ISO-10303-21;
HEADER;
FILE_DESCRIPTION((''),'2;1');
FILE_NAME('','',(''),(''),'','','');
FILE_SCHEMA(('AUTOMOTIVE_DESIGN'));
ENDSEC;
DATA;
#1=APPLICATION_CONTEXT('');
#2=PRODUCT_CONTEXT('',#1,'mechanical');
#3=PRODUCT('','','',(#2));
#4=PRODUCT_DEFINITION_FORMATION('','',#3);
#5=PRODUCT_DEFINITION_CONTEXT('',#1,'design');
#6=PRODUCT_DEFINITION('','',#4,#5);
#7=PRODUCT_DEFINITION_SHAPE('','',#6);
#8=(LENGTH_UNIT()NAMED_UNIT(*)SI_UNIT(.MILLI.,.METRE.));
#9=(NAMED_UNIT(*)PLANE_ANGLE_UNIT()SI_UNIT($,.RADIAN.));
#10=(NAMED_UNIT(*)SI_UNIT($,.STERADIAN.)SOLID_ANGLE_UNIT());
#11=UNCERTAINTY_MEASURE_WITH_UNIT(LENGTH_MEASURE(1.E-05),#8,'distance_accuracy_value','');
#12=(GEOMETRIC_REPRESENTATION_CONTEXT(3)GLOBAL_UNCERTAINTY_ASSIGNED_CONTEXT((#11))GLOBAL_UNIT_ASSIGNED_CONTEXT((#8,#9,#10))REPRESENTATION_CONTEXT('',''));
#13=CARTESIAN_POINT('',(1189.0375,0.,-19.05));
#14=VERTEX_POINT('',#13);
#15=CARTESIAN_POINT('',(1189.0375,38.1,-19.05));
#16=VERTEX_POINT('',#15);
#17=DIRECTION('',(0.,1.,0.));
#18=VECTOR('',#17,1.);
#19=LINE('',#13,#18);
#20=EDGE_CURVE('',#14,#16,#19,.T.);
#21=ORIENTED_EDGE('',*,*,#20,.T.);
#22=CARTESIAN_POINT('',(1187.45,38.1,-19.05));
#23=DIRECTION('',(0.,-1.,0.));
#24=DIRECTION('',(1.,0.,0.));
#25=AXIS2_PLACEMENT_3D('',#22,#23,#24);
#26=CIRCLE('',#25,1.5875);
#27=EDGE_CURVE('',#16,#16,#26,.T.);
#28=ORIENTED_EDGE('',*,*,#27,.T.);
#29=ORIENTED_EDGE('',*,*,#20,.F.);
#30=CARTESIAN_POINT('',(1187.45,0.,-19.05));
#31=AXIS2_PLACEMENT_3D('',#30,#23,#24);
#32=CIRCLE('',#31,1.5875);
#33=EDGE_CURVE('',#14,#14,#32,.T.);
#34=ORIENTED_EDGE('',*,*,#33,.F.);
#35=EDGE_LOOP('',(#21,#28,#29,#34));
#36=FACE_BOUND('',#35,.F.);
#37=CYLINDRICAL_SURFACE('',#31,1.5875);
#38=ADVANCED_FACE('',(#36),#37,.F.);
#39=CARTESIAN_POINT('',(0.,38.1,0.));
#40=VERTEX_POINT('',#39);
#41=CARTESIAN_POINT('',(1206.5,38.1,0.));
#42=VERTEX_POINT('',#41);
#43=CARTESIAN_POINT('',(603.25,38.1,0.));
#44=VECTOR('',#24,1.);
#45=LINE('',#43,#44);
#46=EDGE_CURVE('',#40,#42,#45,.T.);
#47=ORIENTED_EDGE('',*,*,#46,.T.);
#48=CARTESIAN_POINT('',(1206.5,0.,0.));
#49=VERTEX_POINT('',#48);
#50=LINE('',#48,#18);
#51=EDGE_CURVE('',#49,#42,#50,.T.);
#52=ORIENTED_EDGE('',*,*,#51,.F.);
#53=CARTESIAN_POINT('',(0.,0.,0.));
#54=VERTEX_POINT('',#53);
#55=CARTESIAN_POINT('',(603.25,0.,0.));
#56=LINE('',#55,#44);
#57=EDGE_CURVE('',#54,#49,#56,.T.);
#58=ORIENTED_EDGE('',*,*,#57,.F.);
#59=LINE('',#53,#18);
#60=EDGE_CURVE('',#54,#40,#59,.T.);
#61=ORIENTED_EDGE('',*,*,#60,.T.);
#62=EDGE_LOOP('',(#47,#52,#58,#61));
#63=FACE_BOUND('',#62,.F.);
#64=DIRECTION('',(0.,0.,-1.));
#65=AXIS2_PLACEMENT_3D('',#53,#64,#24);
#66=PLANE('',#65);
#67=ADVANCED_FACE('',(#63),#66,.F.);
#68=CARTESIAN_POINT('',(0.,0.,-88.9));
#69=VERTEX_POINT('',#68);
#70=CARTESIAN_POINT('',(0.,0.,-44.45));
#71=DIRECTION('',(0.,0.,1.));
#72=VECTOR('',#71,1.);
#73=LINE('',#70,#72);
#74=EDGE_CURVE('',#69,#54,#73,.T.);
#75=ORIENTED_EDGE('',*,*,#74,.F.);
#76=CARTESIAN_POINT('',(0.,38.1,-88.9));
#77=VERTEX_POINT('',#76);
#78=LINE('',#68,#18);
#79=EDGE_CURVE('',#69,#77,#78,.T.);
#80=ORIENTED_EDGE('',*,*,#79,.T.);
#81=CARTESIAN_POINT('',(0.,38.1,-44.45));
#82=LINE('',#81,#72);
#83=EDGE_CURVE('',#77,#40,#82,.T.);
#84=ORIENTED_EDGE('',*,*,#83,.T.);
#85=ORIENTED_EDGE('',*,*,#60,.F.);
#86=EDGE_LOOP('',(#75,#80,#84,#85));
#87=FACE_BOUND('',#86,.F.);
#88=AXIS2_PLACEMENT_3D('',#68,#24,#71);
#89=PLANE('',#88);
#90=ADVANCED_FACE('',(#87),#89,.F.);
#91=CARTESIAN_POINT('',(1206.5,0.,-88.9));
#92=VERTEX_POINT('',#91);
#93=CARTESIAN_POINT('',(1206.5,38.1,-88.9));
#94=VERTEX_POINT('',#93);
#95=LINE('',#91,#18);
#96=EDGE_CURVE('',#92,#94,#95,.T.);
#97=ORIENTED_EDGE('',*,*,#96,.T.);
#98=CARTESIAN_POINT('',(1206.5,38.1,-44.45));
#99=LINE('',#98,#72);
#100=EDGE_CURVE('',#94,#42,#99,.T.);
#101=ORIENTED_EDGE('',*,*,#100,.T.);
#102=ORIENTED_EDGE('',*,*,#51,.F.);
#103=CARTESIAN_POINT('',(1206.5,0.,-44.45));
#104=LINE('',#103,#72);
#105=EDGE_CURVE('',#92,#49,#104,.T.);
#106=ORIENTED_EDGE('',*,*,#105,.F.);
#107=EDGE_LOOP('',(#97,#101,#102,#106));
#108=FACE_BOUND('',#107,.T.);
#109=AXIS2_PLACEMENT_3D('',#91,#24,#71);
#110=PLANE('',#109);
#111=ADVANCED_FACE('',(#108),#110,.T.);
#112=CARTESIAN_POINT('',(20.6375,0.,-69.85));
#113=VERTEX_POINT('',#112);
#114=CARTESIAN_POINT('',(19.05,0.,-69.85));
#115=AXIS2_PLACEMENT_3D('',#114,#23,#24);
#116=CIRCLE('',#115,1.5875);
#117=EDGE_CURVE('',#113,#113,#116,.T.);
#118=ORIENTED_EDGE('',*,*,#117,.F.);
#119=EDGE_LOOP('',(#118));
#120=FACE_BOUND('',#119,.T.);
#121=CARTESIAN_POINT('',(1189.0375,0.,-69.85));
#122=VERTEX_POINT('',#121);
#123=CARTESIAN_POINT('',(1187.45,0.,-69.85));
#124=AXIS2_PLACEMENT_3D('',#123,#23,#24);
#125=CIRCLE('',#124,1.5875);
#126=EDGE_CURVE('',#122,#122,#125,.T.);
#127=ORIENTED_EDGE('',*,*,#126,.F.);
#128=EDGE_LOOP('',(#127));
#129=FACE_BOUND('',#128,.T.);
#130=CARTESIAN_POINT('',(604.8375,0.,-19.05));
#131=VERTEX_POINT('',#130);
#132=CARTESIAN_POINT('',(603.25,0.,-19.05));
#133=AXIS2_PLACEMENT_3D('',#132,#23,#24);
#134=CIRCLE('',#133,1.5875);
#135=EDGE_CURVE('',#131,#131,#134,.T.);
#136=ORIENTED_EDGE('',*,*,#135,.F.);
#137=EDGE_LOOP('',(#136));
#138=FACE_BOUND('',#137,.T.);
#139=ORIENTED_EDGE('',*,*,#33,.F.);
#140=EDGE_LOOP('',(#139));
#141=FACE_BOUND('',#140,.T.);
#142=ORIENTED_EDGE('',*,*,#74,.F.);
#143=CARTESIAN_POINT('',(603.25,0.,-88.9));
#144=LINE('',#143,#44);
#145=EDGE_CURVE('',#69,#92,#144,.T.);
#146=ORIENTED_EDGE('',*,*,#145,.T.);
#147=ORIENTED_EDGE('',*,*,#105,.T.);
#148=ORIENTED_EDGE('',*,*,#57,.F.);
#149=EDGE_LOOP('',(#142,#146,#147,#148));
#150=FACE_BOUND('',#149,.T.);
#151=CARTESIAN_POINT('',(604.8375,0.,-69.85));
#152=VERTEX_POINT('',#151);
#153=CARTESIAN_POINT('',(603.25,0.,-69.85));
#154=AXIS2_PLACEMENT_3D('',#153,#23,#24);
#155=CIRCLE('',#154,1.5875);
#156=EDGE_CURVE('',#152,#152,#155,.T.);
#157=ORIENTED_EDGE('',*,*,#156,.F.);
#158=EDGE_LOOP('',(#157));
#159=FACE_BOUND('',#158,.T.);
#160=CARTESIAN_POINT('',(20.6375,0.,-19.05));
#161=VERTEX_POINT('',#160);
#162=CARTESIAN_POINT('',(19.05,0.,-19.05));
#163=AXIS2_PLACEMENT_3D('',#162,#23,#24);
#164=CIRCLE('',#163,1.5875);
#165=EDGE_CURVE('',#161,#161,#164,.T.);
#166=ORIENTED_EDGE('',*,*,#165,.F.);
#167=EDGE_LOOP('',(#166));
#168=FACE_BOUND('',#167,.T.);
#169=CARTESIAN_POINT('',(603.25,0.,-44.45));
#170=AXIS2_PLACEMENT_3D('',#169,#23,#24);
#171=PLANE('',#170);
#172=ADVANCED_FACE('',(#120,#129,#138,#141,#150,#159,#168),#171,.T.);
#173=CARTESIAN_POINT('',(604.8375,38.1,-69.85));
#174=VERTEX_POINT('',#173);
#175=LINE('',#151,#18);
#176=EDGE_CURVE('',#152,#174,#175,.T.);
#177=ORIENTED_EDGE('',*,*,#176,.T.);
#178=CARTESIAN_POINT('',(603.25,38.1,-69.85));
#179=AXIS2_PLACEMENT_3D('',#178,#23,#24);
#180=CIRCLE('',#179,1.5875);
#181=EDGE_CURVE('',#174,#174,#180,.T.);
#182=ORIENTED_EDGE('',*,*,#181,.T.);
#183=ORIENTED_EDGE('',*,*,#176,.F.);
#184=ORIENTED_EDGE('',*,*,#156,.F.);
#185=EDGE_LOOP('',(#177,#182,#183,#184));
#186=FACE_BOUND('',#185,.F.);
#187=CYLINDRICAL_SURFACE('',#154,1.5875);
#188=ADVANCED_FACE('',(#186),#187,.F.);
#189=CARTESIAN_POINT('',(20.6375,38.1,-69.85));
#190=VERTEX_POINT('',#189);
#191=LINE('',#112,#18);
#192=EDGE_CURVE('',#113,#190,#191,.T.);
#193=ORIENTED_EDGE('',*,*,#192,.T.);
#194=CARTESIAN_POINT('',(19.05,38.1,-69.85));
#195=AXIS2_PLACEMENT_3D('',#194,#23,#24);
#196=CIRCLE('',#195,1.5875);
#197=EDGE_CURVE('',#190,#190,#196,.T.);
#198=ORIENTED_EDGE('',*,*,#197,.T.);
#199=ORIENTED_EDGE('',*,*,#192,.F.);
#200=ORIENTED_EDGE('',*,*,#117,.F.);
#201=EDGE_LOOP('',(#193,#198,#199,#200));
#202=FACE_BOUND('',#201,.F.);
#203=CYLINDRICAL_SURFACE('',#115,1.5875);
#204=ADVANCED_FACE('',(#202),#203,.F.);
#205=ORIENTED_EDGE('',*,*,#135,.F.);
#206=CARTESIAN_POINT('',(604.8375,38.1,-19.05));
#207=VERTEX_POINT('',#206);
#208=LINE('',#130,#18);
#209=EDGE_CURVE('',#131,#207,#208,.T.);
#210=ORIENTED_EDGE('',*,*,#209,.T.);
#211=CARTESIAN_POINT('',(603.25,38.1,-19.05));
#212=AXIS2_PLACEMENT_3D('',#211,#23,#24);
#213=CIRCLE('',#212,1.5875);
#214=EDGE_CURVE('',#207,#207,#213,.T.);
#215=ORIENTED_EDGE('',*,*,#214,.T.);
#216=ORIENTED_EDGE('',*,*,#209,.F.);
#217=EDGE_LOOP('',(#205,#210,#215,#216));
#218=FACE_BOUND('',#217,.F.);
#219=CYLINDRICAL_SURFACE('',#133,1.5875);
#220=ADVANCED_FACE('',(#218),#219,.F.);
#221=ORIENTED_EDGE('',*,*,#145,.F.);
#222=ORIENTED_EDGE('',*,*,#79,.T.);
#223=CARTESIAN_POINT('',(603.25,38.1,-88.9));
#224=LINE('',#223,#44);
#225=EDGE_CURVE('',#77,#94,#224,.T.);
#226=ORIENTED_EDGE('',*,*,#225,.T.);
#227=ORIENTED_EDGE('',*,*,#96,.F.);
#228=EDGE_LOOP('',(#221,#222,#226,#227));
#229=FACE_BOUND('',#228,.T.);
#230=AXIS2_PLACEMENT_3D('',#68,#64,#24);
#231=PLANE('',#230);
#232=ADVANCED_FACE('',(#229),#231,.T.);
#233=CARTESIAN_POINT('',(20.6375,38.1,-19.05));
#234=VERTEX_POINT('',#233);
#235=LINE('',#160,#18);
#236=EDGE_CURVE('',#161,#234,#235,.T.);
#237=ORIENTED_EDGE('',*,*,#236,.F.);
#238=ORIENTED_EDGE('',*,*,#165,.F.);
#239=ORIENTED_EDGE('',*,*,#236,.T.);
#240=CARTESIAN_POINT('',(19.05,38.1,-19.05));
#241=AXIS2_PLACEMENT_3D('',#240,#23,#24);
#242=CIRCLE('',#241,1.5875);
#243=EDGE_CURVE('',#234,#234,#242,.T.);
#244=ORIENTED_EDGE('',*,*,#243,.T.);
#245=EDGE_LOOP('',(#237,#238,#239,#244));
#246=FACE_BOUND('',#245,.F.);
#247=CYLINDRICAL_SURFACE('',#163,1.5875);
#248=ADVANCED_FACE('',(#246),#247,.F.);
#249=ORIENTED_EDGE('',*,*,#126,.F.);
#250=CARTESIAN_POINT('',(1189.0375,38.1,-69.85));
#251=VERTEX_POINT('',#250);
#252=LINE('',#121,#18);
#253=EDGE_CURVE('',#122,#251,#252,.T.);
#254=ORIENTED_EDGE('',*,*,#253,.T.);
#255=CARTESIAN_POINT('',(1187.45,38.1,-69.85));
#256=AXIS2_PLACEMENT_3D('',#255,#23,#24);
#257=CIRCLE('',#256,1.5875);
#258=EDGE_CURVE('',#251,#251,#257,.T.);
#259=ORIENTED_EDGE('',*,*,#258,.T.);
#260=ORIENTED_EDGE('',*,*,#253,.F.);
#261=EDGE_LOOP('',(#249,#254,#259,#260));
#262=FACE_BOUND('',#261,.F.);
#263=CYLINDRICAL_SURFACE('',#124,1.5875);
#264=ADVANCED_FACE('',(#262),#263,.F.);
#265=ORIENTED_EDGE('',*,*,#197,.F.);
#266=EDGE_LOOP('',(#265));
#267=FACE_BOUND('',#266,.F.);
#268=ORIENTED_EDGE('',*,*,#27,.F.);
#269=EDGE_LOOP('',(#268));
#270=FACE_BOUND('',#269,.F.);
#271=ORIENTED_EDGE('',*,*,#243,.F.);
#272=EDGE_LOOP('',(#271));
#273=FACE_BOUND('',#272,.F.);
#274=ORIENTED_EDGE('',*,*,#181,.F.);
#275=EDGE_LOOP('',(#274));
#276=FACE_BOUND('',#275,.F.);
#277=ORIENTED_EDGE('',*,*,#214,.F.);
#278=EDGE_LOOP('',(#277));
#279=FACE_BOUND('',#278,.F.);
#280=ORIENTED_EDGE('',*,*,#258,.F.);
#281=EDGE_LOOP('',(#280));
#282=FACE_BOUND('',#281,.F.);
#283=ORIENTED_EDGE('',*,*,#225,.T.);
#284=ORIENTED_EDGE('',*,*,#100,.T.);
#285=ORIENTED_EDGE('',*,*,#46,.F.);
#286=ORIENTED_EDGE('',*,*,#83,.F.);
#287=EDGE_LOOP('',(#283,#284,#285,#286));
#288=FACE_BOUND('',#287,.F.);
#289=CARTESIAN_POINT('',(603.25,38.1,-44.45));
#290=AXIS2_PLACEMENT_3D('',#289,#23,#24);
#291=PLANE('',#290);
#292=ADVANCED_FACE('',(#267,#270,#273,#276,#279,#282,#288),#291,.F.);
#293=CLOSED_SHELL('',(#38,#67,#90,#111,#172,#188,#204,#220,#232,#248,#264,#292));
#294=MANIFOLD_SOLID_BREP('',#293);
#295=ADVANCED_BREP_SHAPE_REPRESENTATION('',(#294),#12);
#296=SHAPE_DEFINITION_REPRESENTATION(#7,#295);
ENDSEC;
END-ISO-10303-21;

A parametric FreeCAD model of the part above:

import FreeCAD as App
import Part
import Sketcher

V = App.Vector
Q = App.Units.Quantity

doc = App.newDocument("Part")
params = doc.addObject("Spreadsheet::Sheet", "Params")
for row, (alias, value) in enumerate([
    ("sketch1_width", "47.5 in"),
    ("sketch1_height", "3.5 in"),
    ("pad1_length", "1.5 in"),
    ("sketch2_diameter", "0.125 in"),
], start=1):
    params.set(f"A{row}", alias)
    params.set(f"B{row}", "=" + value)
    params.setAlias(f"B{row}", alias)

body = doc.addObject("PartDesign::Body", "Body")

sketch1 = doc.addObject("Sketcher::SketchObject", "Sketch")
body.addObject(sketch1)
sketch1.AttachmentSupport = (doc.XZ_Plane, [""])
sketch1.MapMode = "FlatFace"
sketch1.addGeometry([
    Part.LineSegment(V(0, 0, 0), V(0, -89, 0)),
    Part.LineSegment(V(0, -89, 0), V(1206, -89, 0)),
    Part.LineSegment(V(1206, -89, 0), V(1206, 0, 0)),
    Part.LineSegment(V(1206, 0, 0), V(0, 0, 0)),
], False)
sketch1.addConstraint([
    Sketcher.Constraint("Coincident", 0, 2, 1, 1),
    Sketcher.Constraint("Coincident", 1, 2, 2, 1),
    Sketcher.Constraint("Coincident", 2, 2, 3, 1),
    Sketcher.Constraint("Coincident", 3, 2, 0, 1),
    Sketcher.Constraint("Vertical", 0),
    Sketcher.Constraint("Horizontal", 1),
    Sketcher.Constraint("Vertical", 2),
    Sketcher.Constraint("Horizontal", 3),
    Sketcher.Constraint("Coincident", 3, 2, -1, 1),
    Sketcher.Constraint("DistanceX", 1, 1, 1, 2, Q("47.5 in")),
    Sketcher.Constraint("DistanceY", 0, 2, 0, 1, Q("3.5 in")),
])
sketch1.setExpression("Constraints[9]", "Params.sketch1_width")
sketch1.setExpression("Constraints[10]", "Params.sketch1_height")
pad1 = doc.addObject("PartDesign::Pad", "Pad")
body.addObject(pad1)
pad1.Profile = sketch1
pad1.setExpression("Length", "Params.pad1_length")
pad1.Reversed = True

sketch2 = doc.addObject("Sketcher::SketchObject", "Sketch001")
body.addObject(sketch2)
sketch2.AttachmentSupport = (doc.XZ_Plane, [""])
sketch2.MapMode = "FlatFace"
sketch2.addGeometry([
    Part.Circle(V(19.1, -19.1, 0), V(0, 0, 1), 1.6),
    Part.Circle(V(19.1, -69.8, 0), V(0, 0, 1), 1.6),
    Part.Circle(V(603.2, -19.1, 0), V(0, 0, 1), 1.6),
    Part.Circle(V(603.2, -69.8, 0), V(0, 0, 1), 1.6),
    Part.Circle(V(1187.5, -19.1, 0), V(0, 0, 1), 1.6),
    Part.Circle(V(1187.5, -69.8, 0), V(0, 0, 1), 1.6),
], False)
sketch2.addConstraint([
    Sketcher.Constraint("Equal", 0, 1),
    Sketcher.Constraint("Equal", 1, 2),
    Sketcher.Constraint("Equal", 2, 3),
    Sketcher.Constraint("Equal", 3, 4),
    Sketcher.Constraint("Equal", 4, 5),
    Sketcher.Constraint("Horizontal", 0, 3, 2, 3),
    Sketcher.Constraint("Horizontal", 1, 3, 3, 3),
    Sketcher.Constraint("Horizontal", 2, 3, 4, 3),
    Sketcher.Constraint("Horizontal", 3, 3, 5, 3),
    Sketcher.Constraint("Vertical", 0, 3, 1, 3),
    Sketcher.Constraint("Vertical", 2, 3, 3, 3),
    Sketcher.Constraint("Vertical", 4, 3, 5, 3),
    Sketcher.Constraint("Diameter", 0, Q("0.125 in")),
    Sketcher.Constraint("DistanceY", 1, 3, 0, 3, Q("2 in")),
    Sketcher.Constraint("DistanceX", 0, 3, 2, 3, Q("23 in")),
    Sketcher.Constraint("DistanceX", 2, 3, 4, 3, Q("23 in")),
    Sketcher.Constraint("DistanceX", -1, 1, 0, 3, Q("0.75 in")),
    Sketcher.Constraint("DistanceY", 0, 3, -1, 1, Q("0.75 in")),
])
sketch2.setExpression("Constraints[12]", "Params.sketch2_diameter")
pocket1 = doc.addObject("PartDesign::Pocket", "Pocket")
body.addObject(pocket1)
pocket1.Profile = sketch2
pocket1.Type = "ThroughAll"

doc.recompute()
